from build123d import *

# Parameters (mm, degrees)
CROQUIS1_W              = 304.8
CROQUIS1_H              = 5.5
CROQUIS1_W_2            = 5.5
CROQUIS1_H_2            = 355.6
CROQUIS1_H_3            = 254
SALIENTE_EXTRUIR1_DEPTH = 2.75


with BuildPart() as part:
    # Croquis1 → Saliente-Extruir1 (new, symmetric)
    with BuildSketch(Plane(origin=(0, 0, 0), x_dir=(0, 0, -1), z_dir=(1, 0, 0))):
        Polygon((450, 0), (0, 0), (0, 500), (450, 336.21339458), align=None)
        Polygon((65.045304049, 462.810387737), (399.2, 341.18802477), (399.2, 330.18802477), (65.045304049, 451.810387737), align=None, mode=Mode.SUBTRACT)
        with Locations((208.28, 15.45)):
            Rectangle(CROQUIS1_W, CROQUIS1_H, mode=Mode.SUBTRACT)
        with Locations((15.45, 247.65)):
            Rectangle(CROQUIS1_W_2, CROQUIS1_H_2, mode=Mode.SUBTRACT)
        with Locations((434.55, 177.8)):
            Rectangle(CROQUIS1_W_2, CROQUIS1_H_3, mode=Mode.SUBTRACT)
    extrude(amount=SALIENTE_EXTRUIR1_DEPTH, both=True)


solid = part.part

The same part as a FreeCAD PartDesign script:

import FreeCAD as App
import Part
import Sketcher
Q = App.Units.Quantity

doc = App.newDocument("Part")
params = doc.addObject("Spreadsheet::Sheet", "Params")
for row, (alias, value) in enumerate([
    ("sketch1_width", "500 mm"),
    ("sketch1_width2", "254 mm"),
    ("sketch1_width3", "11 mm"),
    ("sketch1_height", "450 mm"),
    ("sketch1_width4", "5.5 mm"),
    ("pad1_length", "5.5 mm"),
], start=1):
    params.set(f"A{row}", alias)
    params.set(f"B{row}", "=" + value)
    params.setAlias(f"B{row}", alias)

body = doc.addObject("PartDesign::Body", "Body")

sketch1 = body.newObject("Sketcher::SketchObject", "Sketch")
sketch1.AttachmentSupport = (doc.getObject("YZ_Plane"), [""])
sketch1.MapMode = "FlatFace"
sketch1.addGeometry(Part.LineSegment(App.Vector(0, 0, 0), App.Vector(0, -450, 0)), False)
sketch1.addGeometry(Part.LineSegment(App.Vector(0, -450, 0), App.Vector(336, -450, 0)), False)
sketch1.addGeometry(Part.LineSegment(App.Vector(336, -450, 0), App.Vector(500, 0, 0)), False)
sketch1.addGeometry(Part.LineSegment(App.Vector(500, 0, 0), App.Vector(0, 0, 0)), False)
sketch1.addGeometry(Part.LineSegment(App.Vector(51, -432, 0), App.Vector(305, -432, 0)), False)
sketch1.addGeometry(Part.LineSegment(App.Vector(305, -432, 0), App.Vector(305, -437, 0)), False)
sketch1.addGeometry(Part.LineSegment(App.Vector(305, -437, 0), App.Vector(51, -437, 0)), False)
sketch1.addGeometry(Part.LineSegment(App.Vector(51, -437, 0), App.Vector(51, -432, 0)), False)
sketch1.addGeometry(Part.LineSegment(App.Vector(13, -56, 0), App.Vector(18, -56, 0)), False)
sketch1.addGeometry(Part.LineSegment(App.Vector(18, -56, 0), App.Vector(18, -361, 0)), False)
sketch1.addGeometry(Part.LineSegment(App.Vector(18, -361, 0), App.Vector(13, -361, 0)), False)
sketch1.addGeometry(Part.LineSegment(App.Vector(13, -361, 0), App.Vector(13, -56, 0)), False)
sketch1.addGeometry(Part.LineSegment(App.Vector(463, -65, 0), App.Vector(341, -399, 0)), False)
sketch1.addGeometry(Part.LineSegment(App.Vector(341, -399, 0), App.Vector(330, -399, 0)), False)
sketch1.addGeometry(Part.LineSegment(App.Vector(330, -399, 0), App.Vector(452, -65, 0)), False)
sketch1.addGeometry(Part.LineSegment(App.Vector(452, -65, 0), App.Vector(463, -65, 0)), False)
sketch1.addGeometry(Part.LineSegment(App.Vector(70, -13, 0), App.Vector(425, -13, 0)), False)
sketch1.addGeometry(Part.LineSegment(App.Vector(425, -13, 0), App.Vector(425, -18, 0)), False)
sketch1.addGeometry(Part.LineSegment(App.Vector(425, -18, 0), App.Vector(70, -18, 0)), False)
sketch1.addGeometry(Part.LineSegment(App.Vector(70, -18, 0), App.Vector(70, -13, 0)), False)
sketch1.addConstraint(Sketcher.Constraint("Coincident", 0, 2, 1, 1))
sketch1.addConstraint(Sketcher.Constraint("Coincident", 1, 2, 2, 1))
sketch1.addConstraint(Sketcher.Constraint("Coincident", 2, 2, 3, 1))
sketch1.addConstraint(Sketcher.Constraint("Coincident", 3, 2, 0, 1))
sketch1.addConstraint(Sketcher.Constraint("Coincident", 4, 2, 5, 1))
sketch1.addConstraint(Sketcher.Constraint("Coincident", 5, 2, 6, 1))
sketch1.addConstraint(Sketcher.Constraint("Coincident", 6, 2, 7, 1))
sketch1.addConstraint(Sketcher.Constraint("Coincident", 7, 2, 4, 1))
sketch1.addConstraint(Sketcher.Constraint("Coincident", 8, 2, 9, 1))
sketch1.addConstraint(Sketcher.Constraint("Coincident", 9, 2, 10, 1))
sketch1.addConstraint(Sketcher.Constraint("Coincident", 10, 2, 11, 1))
sketch1.addConstraint(Sketcher.Constraint("Coincident", 11, 2, 8, 1))
sketch1.addConstraint(Sketcher.Constraint("Coincident", 12, 2, 13, 1))
sketch1.addConstraint(Sketcher.Constraint("Coincident", 13, 2, 14, 1))
sketch1.addConstraint(Sketcher.Constraint("Coincident", 14, 2, 15, 1))
sketch1.addConstraint(Sketcher.Constraint("Coincident", 15, 2, 12, 1))
sketch1.addConstraint(Sketcher.Constraint("Coincident", 16, 2, 17, 1))
sketch1.addConstraint(Sketcher.Constraint("Coincident", 17, 2, 18, 1))
sketch1.addConstraint(Sketcher.Constraint("Coincident", 18, 2, 19, 1))
sketch1.addConstraint(Sketcher.Constraint("Coincident", 19, 2, 16, 1))
sketch1.addConstraint(Sketcher.Constraint("Vertical", 0))
sketch1.addConstraint(Sketcher.Constraint("Horizontal", 1))
sketch1.addConstraint(Sketcher.Constraint("Horizontal", 3))
sketch1.addConstraint(Sketcher.Constraint("Horizontal", 4))
sketch1.addConstraint(Sketcher.Constraint("Vertical", 5))
sketch1.addConstraint(Sketcher.Constraint("Horizontal", 6))
sketch1.addConstraint(Sketcher.Constraint("Vertical", 7))
sketch1.addConstraint(Sketcher.Constraint("Horizontal", 8))
sketch1.addConstraint(Sketcher.Constraint("Vertical", 9))
sketch1.addConstraint(Sketcher.Constraint("Horizontal", 10))
sketch1.addConstraint(Sketcher.Constraint("Vertical", 11))
sketch1.addConstraint(Sketcher.Constraint("Horizontal", 13))
sketch1.addConstraint(Sketcher.Constraint("Horizontal", 15))
sketch1.addConstraint(Sketcher.Constraint("Horizontal", 16))
sketch1.addConstraint(Sketcher.Constraint("Vertical", 17))
sketch1.addConstraint(Sketcher.Constraint("Horizontal", 18))
sketch1.addConstraint(Sketcher.Constraint("Vertical", 19))
sketch1.addConstraint(Sketcher.Constraint("Coincident", 3, 2, -1, 1))
sketch1.addConstraint(Sketcher.Constraint("Parallel", 2, 12))
sketch1.addConstraint(Sketcher.Constraint("Parallel", 12, 14))
sketch1.addConstraint(Sketcher.Constraint("Equal", 10, 5))
sketch1.addConstraint(Sketcher.Constraint("Equal", 7, 17))
sketch1.addConstraint(Sketcher.Constraint("DistanceX", 3, 2, 3, 1, Q("500 mm")))
sketch1.addConstraint(Sketcher.Constraint("DistanceX", 4, 1, 4, 2, Q("254 mm")))
sketch1.addConstraint(Sketcher.Constraint("DistanceX", 13, 2, 13, 1, Q("11 mm")))
sketch1.addConstraint(Sketcher.Constraint("DistanceY", 0, 2, 0, 1, Q("450 mm")))
sketch1.addConstraint(Sketcher.Constraint("Angle", 2, Q("70 deg")))
sketch1.addConstraint(Sketcher.Constraint("DistanceX", 8, 1, 8, 2, Q("5.5 mm")))
sketch1.addConstraint(Sketcher.Constraint("DistanceX", 16, 1, 16, 2, Q("355.6 mm")))
sketch1.addConstraint(Sketcher.Constraint("DistanceY", 9, 2, 9, 1, Q("304.8 mm")))
sketch1.addConstraint(Sketcher.Constraint("DistanceY", 12, 2, 17, 2, Q("381 mm")))
sketch1.addConstraint(Sketcher.Constraint("Distance", 12, Q("355.6 mm")))
sketch1.addConstraint(Sketcher.Constraint("DistanceX", -1, 1, 4, 2, Q("304.8 mm")))
sketch1.addConstraint(Sketcher.Constraint("DistanceY", 4, 2, -1, 1, Q("431.8 mm")))
sketch1.addConstraint(Sketcher.Constraint("DistanceX", -1, 1, 8, 2, Q("18.2 mm")))
sketch1.addConstraint(Sketcher.Constraint("DistanceY", 12, 2, -1, 1, Q("399.2 mm")))
sketch1.addConstraint(Sketcher.Constraint("DistanceY", 8, 2, -1, 1, Q("55.88 mm")))
sketch1.addConstraint(Sketcher.Constraint("DistanceX", -1, 1, 16, 2, Q("425.45 mm")))
sketch1.addConstraint(Sketcher.Constraint("DistanceX", 1, 2, 12, 2, Q("4.97463 mm")))
sketch1.setExpression("Constraints[42]", "Params.sketch1_width")
sketch1.setExpression("Constraints[43]", "Params.sketch1_width2")
sketch1.setExpression("Constraints[44]", "Params.sketch1_width3")
sketch1.setExpression("Constraints[45]", "Params.sketch1_height")
sketch1.setExpression("Constraints[47]", "Params.sketch1_width4")
pad1 = body.newObject("PartDesign::Pad", "Pad")
pad1.Profile = sketch1
pad1.setExpression("Length", "Params.pad1_length")
pad1.Midplane = True

doc.recompute()
